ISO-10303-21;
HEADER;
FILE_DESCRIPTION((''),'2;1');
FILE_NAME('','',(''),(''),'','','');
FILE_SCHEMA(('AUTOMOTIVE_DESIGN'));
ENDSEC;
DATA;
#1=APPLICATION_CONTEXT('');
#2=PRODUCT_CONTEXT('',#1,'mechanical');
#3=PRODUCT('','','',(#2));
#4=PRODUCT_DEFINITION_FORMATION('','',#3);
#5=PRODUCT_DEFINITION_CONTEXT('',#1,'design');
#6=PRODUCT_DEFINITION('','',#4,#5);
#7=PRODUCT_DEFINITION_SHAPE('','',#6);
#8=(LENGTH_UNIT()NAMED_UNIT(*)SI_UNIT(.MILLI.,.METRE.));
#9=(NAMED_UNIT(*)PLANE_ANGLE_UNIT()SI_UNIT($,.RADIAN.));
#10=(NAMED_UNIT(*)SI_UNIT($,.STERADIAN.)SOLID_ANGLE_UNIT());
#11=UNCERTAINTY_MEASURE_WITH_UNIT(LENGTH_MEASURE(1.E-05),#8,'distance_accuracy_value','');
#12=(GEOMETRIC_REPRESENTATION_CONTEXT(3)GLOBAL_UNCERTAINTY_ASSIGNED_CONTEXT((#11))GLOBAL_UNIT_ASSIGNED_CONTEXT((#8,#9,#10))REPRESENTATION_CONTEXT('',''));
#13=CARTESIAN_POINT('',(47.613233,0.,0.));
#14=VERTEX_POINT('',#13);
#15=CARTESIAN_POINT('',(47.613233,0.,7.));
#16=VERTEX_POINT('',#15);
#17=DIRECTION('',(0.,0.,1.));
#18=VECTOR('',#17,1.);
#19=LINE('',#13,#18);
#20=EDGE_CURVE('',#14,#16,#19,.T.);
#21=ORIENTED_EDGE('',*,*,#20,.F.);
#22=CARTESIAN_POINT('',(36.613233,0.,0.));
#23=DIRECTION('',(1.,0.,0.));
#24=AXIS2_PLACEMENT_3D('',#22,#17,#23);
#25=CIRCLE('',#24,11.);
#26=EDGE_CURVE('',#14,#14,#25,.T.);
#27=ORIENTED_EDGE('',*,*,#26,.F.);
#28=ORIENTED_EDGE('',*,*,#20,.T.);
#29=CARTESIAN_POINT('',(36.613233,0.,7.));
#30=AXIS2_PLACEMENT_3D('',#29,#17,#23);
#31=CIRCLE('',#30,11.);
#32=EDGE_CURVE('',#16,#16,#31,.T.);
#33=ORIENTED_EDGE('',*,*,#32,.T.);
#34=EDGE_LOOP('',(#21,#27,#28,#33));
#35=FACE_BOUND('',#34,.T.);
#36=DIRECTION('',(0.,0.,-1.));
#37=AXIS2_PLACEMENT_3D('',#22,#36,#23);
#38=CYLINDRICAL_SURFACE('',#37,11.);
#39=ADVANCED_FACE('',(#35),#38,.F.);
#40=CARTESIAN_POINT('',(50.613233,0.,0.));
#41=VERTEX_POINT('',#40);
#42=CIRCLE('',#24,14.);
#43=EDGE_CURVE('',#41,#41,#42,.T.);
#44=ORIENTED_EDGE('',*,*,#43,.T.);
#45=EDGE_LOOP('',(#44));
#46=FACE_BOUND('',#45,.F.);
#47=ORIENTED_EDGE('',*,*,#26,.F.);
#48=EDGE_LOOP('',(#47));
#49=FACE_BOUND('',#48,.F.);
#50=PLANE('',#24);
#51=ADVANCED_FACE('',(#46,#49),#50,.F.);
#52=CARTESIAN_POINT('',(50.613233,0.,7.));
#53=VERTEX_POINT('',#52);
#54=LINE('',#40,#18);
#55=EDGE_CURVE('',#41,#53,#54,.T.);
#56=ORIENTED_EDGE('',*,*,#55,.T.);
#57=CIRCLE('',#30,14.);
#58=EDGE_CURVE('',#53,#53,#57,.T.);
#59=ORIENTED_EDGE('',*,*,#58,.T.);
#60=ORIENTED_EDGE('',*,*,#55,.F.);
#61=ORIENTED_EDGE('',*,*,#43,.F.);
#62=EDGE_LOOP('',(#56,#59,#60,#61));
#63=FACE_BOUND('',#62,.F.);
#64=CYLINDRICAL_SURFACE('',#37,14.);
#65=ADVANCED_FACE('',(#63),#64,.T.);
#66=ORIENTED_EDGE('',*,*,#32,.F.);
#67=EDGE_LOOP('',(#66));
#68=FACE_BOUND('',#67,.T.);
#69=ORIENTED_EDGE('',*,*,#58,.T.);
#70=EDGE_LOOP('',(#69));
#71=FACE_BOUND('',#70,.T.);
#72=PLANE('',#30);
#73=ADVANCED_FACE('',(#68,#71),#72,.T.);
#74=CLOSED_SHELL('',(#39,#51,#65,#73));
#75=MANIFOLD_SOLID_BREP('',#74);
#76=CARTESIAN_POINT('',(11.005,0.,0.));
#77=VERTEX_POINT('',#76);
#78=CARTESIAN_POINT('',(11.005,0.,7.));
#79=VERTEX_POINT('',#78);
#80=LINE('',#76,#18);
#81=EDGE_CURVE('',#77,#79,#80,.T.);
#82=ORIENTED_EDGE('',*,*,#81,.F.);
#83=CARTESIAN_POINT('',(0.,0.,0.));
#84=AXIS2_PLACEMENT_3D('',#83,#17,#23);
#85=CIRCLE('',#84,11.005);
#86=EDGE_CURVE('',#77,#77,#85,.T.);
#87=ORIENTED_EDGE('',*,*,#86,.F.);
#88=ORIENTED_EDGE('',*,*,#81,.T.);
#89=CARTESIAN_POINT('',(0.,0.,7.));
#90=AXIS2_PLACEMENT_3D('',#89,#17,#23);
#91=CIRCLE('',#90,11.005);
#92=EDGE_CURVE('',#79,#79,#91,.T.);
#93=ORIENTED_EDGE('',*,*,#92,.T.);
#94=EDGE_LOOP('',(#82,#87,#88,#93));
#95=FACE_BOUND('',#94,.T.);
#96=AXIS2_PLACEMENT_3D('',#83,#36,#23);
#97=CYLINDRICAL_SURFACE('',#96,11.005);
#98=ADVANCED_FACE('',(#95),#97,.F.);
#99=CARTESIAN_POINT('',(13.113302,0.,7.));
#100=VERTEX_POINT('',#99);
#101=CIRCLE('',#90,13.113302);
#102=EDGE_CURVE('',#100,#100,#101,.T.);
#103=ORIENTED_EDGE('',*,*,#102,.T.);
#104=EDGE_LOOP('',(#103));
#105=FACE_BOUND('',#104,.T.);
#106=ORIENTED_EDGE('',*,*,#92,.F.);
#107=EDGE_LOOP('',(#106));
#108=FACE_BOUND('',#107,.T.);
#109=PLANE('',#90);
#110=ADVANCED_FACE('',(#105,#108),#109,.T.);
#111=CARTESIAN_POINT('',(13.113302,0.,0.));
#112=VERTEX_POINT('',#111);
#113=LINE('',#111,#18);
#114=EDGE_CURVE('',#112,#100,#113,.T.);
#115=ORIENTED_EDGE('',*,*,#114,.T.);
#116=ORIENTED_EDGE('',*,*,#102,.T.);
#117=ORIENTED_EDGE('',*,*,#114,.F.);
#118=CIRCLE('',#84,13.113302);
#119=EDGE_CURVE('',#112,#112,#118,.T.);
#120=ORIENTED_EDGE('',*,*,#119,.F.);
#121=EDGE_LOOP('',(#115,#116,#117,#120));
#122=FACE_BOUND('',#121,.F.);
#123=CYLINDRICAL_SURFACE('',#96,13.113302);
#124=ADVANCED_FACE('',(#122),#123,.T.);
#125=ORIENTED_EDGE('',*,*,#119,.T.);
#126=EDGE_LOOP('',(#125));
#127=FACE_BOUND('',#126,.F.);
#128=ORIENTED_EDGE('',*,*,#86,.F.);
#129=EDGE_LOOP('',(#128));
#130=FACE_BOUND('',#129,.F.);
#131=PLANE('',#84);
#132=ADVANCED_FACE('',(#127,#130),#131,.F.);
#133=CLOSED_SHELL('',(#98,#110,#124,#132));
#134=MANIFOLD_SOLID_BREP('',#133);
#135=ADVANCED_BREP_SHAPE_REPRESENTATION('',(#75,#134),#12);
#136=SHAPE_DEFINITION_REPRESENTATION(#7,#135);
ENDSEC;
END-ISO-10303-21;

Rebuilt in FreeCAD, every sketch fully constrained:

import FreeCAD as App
import Part
import Sketcher

V = App.Vector

doc = App.newDocument("Part")
body = doc.addObject("PartDesign::Body", "Body")
body.AllowCompound = True

# Sketch on XY plane
sketch1 = body.newObject("Sketcher::SketchObject", "Sketch")
sketch1.AttachmentSupport = (doc.getObject("XY_Plane"), [""])
sketch1.MapMode = "FlatFace"
sketch1.addGeometry(Part.Circle(V(0, 0, 0), V(0, 0, 1), 13), False)
sketch1.addGeometry(Part.Circle(V(0, 0, 0), V(0, 0, 1), 11), False)
sketch1.addGeometry(Part.Circle(V(37, 0, 0), V(0, 0, 1), 14), False)
sketch1.addGeometry(Part.Circle(V(37, 0, 0), V(0, 0, 1), 11), False)
sketch1.addConstraint(Sketcher.Constraint("Coincident", 0, 3, -1, 1))
sketch1.addConstraint(Sketcher.Constraint("Coincident", 1, 3, -1, 1))
sketch1.addConstraint(Sketcher.Constraint("Coincident", 3, 3, 2, 3))
sketch1.addConstraint(Sketcher.Constraint("PointOnObject", 2, 3, -1))
sketch1.addConstraint(Sketcher.Constraint("Diameter", 2, 28.0))
sketch1.addConstraint(Sketcher.Constraint("Diameter", 3, 22.0))
sketch1.addConstraint(Sketcher.Constraint("Diameter", 1, 22.01))
sketch1.addConstraint(Sketcher.Constraint("Diameter", 0, 26.226604))
sketch1.addConstraint(Sketcher.Constraint("DistanceX", -1, 1, 2, 3, 36.613233))
pad1 = body.newObject("PartDesign::Pad", "Pad")
pad1.Profile = sketch1
pad1.Length = 7

doc.recompute()
